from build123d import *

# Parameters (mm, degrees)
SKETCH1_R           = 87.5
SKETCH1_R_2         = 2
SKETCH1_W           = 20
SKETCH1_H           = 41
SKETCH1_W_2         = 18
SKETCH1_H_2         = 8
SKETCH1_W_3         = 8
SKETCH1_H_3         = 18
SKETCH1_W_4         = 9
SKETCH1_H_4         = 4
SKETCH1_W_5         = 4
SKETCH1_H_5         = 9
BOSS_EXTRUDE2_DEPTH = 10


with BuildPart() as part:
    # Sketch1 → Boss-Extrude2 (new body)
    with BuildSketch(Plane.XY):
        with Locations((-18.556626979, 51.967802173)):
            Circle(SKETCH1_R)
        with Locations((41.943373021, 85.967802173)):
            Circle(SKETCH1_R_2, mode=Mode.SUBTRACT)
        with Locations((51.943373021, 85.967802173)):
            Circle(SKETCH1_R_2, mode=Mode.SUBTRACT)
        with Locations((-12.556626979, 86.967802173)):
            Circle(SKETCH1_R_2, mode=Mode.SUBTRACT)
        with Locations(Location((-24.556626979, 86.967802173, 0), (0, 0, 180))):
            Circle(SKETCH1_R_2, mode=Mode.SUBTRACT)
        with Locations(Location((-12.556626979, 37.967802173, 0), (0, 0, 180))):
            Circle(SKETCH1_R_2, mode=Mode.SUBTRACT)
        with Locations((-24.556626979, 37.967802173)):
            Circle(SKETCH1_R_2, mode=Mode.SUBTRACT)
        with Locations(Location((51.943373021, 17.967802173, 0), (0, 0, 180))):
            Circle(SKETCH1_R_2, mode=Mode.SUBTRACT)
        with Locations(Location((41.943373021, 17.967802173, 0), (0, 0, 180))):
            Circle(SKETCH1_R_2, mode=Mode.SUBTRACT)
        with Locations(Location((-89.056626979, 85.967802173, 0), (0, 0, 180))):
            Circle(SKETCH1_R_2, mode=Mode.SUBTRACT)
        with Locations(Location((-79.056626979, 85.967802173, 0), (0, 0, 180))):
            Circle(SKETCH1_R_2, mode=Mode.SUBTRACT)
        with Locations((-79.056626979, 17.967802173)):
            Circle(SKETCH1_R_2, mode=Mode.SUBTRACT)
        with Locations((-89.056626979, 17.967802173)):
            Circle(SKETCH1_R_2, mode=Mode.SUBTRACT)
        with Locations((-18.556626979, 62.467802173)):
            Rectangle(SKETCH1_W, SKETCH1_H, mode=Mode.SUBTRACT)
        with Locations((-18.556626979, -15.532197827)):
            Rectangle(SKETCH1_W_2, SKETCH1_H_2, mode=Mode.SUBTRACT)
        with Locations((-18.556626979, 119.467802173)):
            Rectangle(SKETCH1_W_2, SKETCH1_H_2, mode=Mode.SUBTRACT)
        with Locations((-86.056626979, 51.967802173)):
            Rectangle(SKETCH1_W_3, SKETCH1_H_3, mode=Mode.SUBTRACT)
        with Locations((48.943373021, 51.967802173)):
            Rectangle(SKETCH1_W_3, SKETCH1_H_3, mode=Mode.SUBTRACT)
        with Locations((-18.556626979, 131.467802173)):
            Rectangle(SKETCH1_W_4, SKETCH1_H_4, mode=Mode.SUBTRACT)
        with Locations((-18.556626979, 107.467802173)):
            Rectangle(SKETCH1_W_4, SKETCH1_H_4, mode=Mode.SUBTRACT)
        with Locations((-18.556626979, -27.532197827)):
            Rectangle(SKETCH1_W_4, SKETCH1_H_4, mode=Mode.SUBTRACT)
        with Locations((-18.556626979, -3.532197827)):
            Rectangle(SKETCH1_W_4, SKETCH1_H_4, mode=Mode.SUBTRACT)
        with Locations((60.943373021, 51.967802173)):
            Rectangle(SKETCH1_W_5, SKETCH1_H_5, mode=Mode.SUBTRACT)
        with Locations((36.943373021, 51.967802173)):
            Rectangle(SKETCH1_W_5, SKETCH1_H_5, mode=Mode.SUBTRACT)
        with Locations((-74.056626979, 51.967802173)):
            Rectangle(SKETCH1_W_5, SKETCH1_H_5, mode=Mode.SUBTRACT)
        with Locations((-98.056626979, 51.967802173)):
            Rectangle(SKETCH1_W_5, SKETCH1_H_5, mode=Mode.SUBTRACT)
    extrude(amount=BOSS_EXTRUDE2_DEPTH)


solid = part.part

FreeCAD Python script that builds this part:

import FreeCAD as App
import Part
import Sketcher

V = App.Vector
Q = App.Units.Quantity


def add_polygon(sketch, points):
    """Adds a closed chain of lines whose ends are joined by coincident constraints."""
    first, n = sketch.GeometryCount, len(points)
    for a, b in zip(points, points[1:] + points[:1]):
        sketch.addGeometry(Part.LineSegment(App.Vector(*a, 0), App.Vector(*b, 0)), False)
    for i in range(n):
        sketch.addConstraint(Sketcher.Constraint("Coincident", first + i, 2, first + (i + 1) % n, 1))

doc = App.newDocument("Part")
body = doc.addObject("PartDesign::Body", "Body")

sketch1 = doc.addObject("Sketcher::SketchObject", "Sketch")
body.addObject(sketch1)
sketch1.AttachmentSupport = (doc.XY_Plane, [""])
sketch1.MapMode = "FlatFace"
sketch1.addGeometry(Part.Circle(V(-18.556627, 51.967802, 0), V(0, 0, 1), 87.5), False)
sketch1.addGeometry(Part.Circle(V(-89.056627, 17.967802, 0), V(0, 0, 1), 2), False)
sketch1.addGeometry(Part.Circle(V(-79.056627, 17.967802, 0), V(0, 0, 1), 2), False)
sketch1.addGeometry(Part.Circle(V(-24.556627, 37.967802, 0), V(0, 0, 1), 2), False)
add_polygon(sketch1, [(-14.056627, -29.532198), (-23.056627, -29.532198), (-23.056627, -25.532198), (-14.056627, -25.532198)])
add_polygon(sketch1, [(-9.556627, -19.532198), (-27.556627, -19.532198), (-27.556627, -11.532198), (-9.556627, -11.532198)])
add_polygon(sketch1, [(-14.056627, -5.532198), (-23.056627, -5.532198), (-23.056627, -1.532198), (-14.056627, -1.532198)])
sketch1.addGeometry(Part.Circle(V(-12.556627, 37.967802, 0), V(0, 0, 1), 2), False)
sketch1.addGeometry(Part.Circle(V(41.943373, 17.967802, 0), V(0, 0, 1), 2), False)
sketch1.addGeometry(Part.Circle(V(51.943373, 17.967802, 0), V(0, 0, 1), 2), False)
add_polygon(sketch1, [(-96.056627, 47.467802), (-100.056627, 47.467802), (-100.056627, 56.467802), (-96.056627, 56.467802)])
add_polygon(sketch1, [(-82.056627, 42.967802), (-90.056627, 42.967802), (-90.056627, 60.967802), (-82.056627, 60.967802)])
add_polygon(sketch1, [(-72.056627, 47.467802), (-76.056627, 47.467802), (-76.056627, 56.467802), (-72.056627, 56.467802)])
sketch1.addGeometry(Part.Circle(V(-89.056627, 85.967802, 0), V(0, 0, 1), 2), False)
sketch1.addGeometry(Part.Circle(V(-79.056627, 85.967802, 0), V(0, 0, 1), 2), False)
sketch1.addGeometry(Part.Circle(V(-24.556627, 86.967802, 0), V(0, 0, 1), 2), False)
add_polygon(sketch1, [(-8.556627, 41.967802), (-28.556627, 41.967802), (-28.556627, 82.967802), (-8.556627, 82.967802)])
sketch1.addGeometry(Part.Circle(V(-12.556627, 86.967802, 0), V(0, 0, 1), 2), False)
add_polygon(sketch1, [(38.943373, 47.467802), (34.943373, 47.467802), (34.943373, 56.467802), (38.943373, 56.467802)])
add_polygon(sketch1, [(52.943373, 42.967802), (44.943373, 42.967802), (44.943373, 60.967802), (52.943373, 60.967802)])
add_polygon(sketch1, [(62.943373, 47.467802), (58.943373, 47.467802), (58.943373, 56.467802), (62.943373, 56.467802)])
sketch1.addGeometry(Part.Circle(V(41.943373, 85.967802, 0), V(0, 0, 1), 2), False)
sketch1.addGeometry(Part.Circle(V(51.943373, 85.967802, 0), V(0, 0, 1), 2), False)
add_polygon(sketch1, [(-14.056627, 105.467802), (-23.056627, 105.467802), (-23.056627, 109.467802), (-14.056627, 109.467802)])
add_polygon(sketch1, [(-9.556627, 115.467802), (-27.556627, 115.467802), (-27.556627, 123.467802), (-9.556627, 123.467802)])
add_polygon(sketch1, [(-14.056627, 129.467802), (-23.056627, 129.467802), (-23.056627, 133.467802), (-14.056627, 133.467802)])
sketch1.addConstraint([
    Sketcher.Constraint("Horizontal", 4),
    Sketcher.Constraint("Vertical", 5),
    Sketcher.Constraint("Horizontal", 6),
    Sketcher.Constraint("Vertical", 7),
    Sketcher.Constraint("Horizontal", 8),
    Sketcher.Constraint("Vertical", 9),
    Sketcher.Constraint("Horizontal", 10),
    Sketcher.Constraint("Vertical", 11),
    Sketcher.Constraint("Horizontal", 12),
    Sketcher.Constraint("Vertical", 13),
    Sketcher.Constraint("Horizontal", 14),
    Sketcher.Constraint("Vertical", 15),
    Sketcher.Constraint("Horizontal", 19),
    Sketcher.Constraint("Vertical", 20),
    Sketcher.Constraint("Horizontal", 21),
    Sketcher.Constraint("Vertical", 22),
    Sketcher.Constraint("Horizontal", 23),
    Sketcher.Constraint("Vertical", 24),
    Sketcher.Constraint("Horizontal", 25),
    Sketcher.Constraint("Vertical", 26),
    Sketcher.Constraint("Horizontal", 27),
    Sketcher.Constraint("Vertical", 28),
    Sketcher.Constraint("Horizontal", 29),
    Sketcher.Constraint("Vertical", 30),
    Sketcher.Constraint("Horizontal", 34),
    Sketcher.Constraint("Vertical", 35),
    Sketcher.Constraint("Horizontal", 36),
    Sketcher.Constraint("Vertical", 37),
    Sketcher.Constraint("Horizontal", 39),
    Sketcher.Constraint("Vertical", 40),
    Sketcher.Constraint("Horizontal", 41),
    Sketcher.Constraint("Vertical", 42),
    Sketcher.Constraint("Horizontal", 43),
    Sketcher.Constraint("Vertical", 44),
    Sketcher.Constraint("Horizontal", 45),
    Sketcher.Constraint("Vertical", 46),
    Sketcher.Constraint("Horizontal", 47),
    Sketcher.Constraint("Vertical", 48),
    Sketcher.Constraint("Horizontal", 49),
    Sketcher.Constraint("Vertical", 50),
    Sketcher.Constraint("Horizontal", 53),
    Sketcher.Constraint("Vertical", 54),
    Sketcher.Constraint("Horizontal", 55),
    Sketcher.Constraint("Vertical", 56),
    Sketcher.Constraint("Horizontal", 57),
    Sketcher.Constraint("Vertical", 58),
    Sketcher.Constraint("Horizontal", 59),
    Sketcher.Constraint("Vertical", 60),
    Sketcher.Constraint("Horizontal", 61),
    Sketcher.Constraint("Vertical", 62),
    Sketcher.Constraint("Horizontal", 63),
    Sketcher.Constraint("Vertical", 64),
    Sketcher.Constraint("Equal", 1, 2),
    Sketcher.Constraint("Equal", 2, 3),
    Sketcher.Constraint("Equal", 3, 16),
    Sketcher.Constraint("Equal", 16, 17),
    Sketcher.Constraint("Equal", 17, 18),
    Sketcher.Constraint("Equal", 18, 31),
    Sketcher.Constraint("Equal", 31, 32),
    Sketcher.Constraint("Equal", 32, 33),
    Sketcher.Constraint("Equal", 33, 38),
    Sketcher.Constraint("Equal", 38, 51),
    Sketcher.Constraint("Equal", 51, 52),
    Sketcher.Constraint("Horizontal", 1, 3, 2, 3),
    Sketcher.Constraint("Horizontal", 3, 3, 16, 3),
    Sketcher.Constraint("Horizontal", 2, 3, 17, 3),
    Sketcher.Constraint("Horizontal", 17, 3, 18, 3),
    Sketcher.Constraint("Horizontal", 31, 3, 32, 3),
    Sketcher.Constraint("Horizontal", 33, 3, 38, 3),
    Sketcher.Constraint("Horizontal", 32, 3, 51, 3),
    Sketcher.Constraint("Horizontal", 51, 3, 52, 3),
    Sketcher.Constraint("Horizontal", 22, 2, 27, 2),
    Sketcher.Constraint("Horizontal", 21, 2, 28, 2),
    Sketcher.Constraint("Horizontal", 30, 2, 39, 2),
    Sketcher.Constraint("Horizontal", 29, 2, 40, 2),
    Sketcher.Constraint("Horizontal", 26, 2, 43, 2),
    Sketcher.Constraint("Horizontal", 25, 2, 44, 2),
    Sketcher.Constraint("Horizontal", 42, 2, 47, 2),
    Sketcher.Constraint("Horizontal", 41, 2, 48, 2),
    Sketcher.Constraint("Vertical", 1, 3, 31, 3),
    Sketcher.Constraint("Vertical", 2, 3, 32, 3),
    Sketcher.Constraint("Vertical", 3, 3, 33, 3),
    Sketcher.Constraint("Vertical", 16, 3, 38, 3),
    Sketcher.Constraint("Vertical", 17, 3, 51, 3),
    Sketcher.Constraint("Vertical", 18, 3, 52, 3),
    Sketcher.Constraint("Vertical", 5, 2, 12, 2),
    Sketcher.Constraint("Vertical", 7, 2, 14, 2),
    Sketcher.Constraint("Vertical", 13, 2, 53, 2),
    Sketcher.Constraint("Vertical", 15, 2, 55, 2),
    Sketcher.Constraint("Vertical", 9, 2, 57, 2),
    Sketcher.Constraint("Vertical", 11, 2, 59, 2),
    Sketcher.Constraint("Vertical", 54, 2, 61, 2),
    Sketcher.Constraint("Vertical", 56, 2, 63, 2),
    Sketcher.Constraint("Equal", 21, 27),
    Sketcher.Constraint("Equal", 29, 39),
    Sketcher.Constraint("Equal", 25, 43),
    Sketcher.Constraint("Equal", 41, 47),
    Sketcher.Constraint("Equal", 49, 5),
    Sketcher.Constraint("Equal", 45, 9),
    Sketcher.Constraint("Equal", 7, 13),
    Sketcher.Constraint("Equal", 63, 20),
    Sketcher.Constraint("Equal", 59, 24),
    Sketcher.Constraint("Equal", 15, 54),
    Sketcher.Constraint("Equal", 11, 58),
    Sketcher.Constraint("Equal", 56, 62),
    Sketcher.Constraint("Diameter", 0, Q("175 mm")),
    Sketcher.Constraint("Diameter", 1, Q("4 mm")),
    Sketcher.Constraint("DistanceX", 4, 2, 4, 1, Q("9 mm")),
    Sketcher.Constraint("DistanceX", 8, 2, 8, 1, Q("18 mm")),
    Sketcher.Constraint("DistanceX", 19, 2, 19, 1, Q("4 mm")),
    Sketcher.Constraint("DistanceX", 23, 2, 23, 1, Q("8 mm")),
    Sketcher.Constraint("DistanceX", 34, 2, 34, 1, Q("20 mm")),
    Sketcher.Constraint("DistanceY", 35, 1, 35, 2, Q("41 mm")),
    Sketcher.Constraint("DistanceX", 0, 3, -1, 1, Q("18.556627 mm")),
    Sketcher.Constraint("DistanceY", -1, 1, 0, 3, Q("51.967802 mm")),
    Sketcher.Constraint("DistanceX", 1, 3, -1, 1, Q("89.056627 mm")),
    Sketcher.Constraint("DistanceY", -1, 1, 1, 3, Q("17.967802 mm")),
    Sketcher.Constraint("DistanceX", 2, 3, -1, 1, Q("79.056627 mm")),
    Sketcher.Constraint("DistanceX", 3, 3, -1, 1, Q("24.556627 mm")),
    Sketcher.Constraint("DistanceY", -1, 1, 3, 3, Q("37.967802 mm")),
    Sketcher.Constraint("DistanceX", 16, 3, -1, 1, Q("12.556627 mm")),
    Sketcher.Constraint("DistanceX", -1, 1, 17, 3, Q("41.943373 mm")),
    Sketcher.Constraint("DistanceX", -1, 1, 18, 3, Q("51.943373 mm")),
    Sketcher.Constraint("DistanceY", -1, 1, 31, 3, Q("85.967802 mm")),
    Sketcher.Constraint("DistanceY", -1, 1, 33, 3, Q("86.967802 mm")),
    Sketcher.Constraint("DistanceX", 4, 2, -1, 1, Q("23.056627 mm")),
    Sketcher.Constraint("DistanceY", 4, 2, -1, 1, Q("29.532198 mm")),
    Sketcher.Constraint("DistanceX", 8, 2, -1, 1, Q("27.556627 mm")),
    Sketcher.Constraint("DistanceY", 8, 2, -1, 1, Q("19.532198 mm")),
    Sketcher.Constraint("DistanceY", 12, 2, -1, 1, Q("5.532198 mm")),
    Sketcher.Constraint("DistanceX", 19, 2, -1, 1, Q("100.056627 mm")),
    Sketcher.Constraint("DistanceY", -1, 1, 19, 2, Q("47.467802 mm")),
    Sketcher.Constraint("DistanceX", 23, 2, -1, 1, Q("90.056627 mm")),
    Sketcher.Constraint("DistanceY", -1, 1, 23, 2, Q("42.967802 mm")),
    Sketcher.Constraint("DistanceX", 27, 2, -1, 1, Q("76.056627 mm")),
    Sketcher.Constraint("DistanceX", 34, 2, -1, 1, Q("28.556627 mm")),
    Sketcher.Constraint("DistanceY", -1, 1, 34, 2, Q("41.967802 mm")),
    Sketcher.Constraint("DistanceX", -1, 1, 39, 2, Q("34.943373 mm")),
    Sketcher.Constraint("DistanceX", -1, 1, 43, 2, Q("44.943373 mm")),
    Sketcher.Constraint("DistanceX", -1, 1, 47, 2, Q("58.943373 mm")),
    Sketcher.Constraint("DistanceY", -1, 1, 53, 2, Q("105.467802 mm")),
    Sketcher.Constraint("DistanceY", -1, 1, 57, 2, Q("115.467802 mm")),
    Sketcher.Constraint("DistanceY", -1, 1, 61, 2, Q("129.467802 mm")),
])
pad1 = doc.addObject("PartDesign::Pad", "Pad")
body.addObject(pad1)
pad1.Profile = sketch1
pad1.Length = 10

doc.recompute()
